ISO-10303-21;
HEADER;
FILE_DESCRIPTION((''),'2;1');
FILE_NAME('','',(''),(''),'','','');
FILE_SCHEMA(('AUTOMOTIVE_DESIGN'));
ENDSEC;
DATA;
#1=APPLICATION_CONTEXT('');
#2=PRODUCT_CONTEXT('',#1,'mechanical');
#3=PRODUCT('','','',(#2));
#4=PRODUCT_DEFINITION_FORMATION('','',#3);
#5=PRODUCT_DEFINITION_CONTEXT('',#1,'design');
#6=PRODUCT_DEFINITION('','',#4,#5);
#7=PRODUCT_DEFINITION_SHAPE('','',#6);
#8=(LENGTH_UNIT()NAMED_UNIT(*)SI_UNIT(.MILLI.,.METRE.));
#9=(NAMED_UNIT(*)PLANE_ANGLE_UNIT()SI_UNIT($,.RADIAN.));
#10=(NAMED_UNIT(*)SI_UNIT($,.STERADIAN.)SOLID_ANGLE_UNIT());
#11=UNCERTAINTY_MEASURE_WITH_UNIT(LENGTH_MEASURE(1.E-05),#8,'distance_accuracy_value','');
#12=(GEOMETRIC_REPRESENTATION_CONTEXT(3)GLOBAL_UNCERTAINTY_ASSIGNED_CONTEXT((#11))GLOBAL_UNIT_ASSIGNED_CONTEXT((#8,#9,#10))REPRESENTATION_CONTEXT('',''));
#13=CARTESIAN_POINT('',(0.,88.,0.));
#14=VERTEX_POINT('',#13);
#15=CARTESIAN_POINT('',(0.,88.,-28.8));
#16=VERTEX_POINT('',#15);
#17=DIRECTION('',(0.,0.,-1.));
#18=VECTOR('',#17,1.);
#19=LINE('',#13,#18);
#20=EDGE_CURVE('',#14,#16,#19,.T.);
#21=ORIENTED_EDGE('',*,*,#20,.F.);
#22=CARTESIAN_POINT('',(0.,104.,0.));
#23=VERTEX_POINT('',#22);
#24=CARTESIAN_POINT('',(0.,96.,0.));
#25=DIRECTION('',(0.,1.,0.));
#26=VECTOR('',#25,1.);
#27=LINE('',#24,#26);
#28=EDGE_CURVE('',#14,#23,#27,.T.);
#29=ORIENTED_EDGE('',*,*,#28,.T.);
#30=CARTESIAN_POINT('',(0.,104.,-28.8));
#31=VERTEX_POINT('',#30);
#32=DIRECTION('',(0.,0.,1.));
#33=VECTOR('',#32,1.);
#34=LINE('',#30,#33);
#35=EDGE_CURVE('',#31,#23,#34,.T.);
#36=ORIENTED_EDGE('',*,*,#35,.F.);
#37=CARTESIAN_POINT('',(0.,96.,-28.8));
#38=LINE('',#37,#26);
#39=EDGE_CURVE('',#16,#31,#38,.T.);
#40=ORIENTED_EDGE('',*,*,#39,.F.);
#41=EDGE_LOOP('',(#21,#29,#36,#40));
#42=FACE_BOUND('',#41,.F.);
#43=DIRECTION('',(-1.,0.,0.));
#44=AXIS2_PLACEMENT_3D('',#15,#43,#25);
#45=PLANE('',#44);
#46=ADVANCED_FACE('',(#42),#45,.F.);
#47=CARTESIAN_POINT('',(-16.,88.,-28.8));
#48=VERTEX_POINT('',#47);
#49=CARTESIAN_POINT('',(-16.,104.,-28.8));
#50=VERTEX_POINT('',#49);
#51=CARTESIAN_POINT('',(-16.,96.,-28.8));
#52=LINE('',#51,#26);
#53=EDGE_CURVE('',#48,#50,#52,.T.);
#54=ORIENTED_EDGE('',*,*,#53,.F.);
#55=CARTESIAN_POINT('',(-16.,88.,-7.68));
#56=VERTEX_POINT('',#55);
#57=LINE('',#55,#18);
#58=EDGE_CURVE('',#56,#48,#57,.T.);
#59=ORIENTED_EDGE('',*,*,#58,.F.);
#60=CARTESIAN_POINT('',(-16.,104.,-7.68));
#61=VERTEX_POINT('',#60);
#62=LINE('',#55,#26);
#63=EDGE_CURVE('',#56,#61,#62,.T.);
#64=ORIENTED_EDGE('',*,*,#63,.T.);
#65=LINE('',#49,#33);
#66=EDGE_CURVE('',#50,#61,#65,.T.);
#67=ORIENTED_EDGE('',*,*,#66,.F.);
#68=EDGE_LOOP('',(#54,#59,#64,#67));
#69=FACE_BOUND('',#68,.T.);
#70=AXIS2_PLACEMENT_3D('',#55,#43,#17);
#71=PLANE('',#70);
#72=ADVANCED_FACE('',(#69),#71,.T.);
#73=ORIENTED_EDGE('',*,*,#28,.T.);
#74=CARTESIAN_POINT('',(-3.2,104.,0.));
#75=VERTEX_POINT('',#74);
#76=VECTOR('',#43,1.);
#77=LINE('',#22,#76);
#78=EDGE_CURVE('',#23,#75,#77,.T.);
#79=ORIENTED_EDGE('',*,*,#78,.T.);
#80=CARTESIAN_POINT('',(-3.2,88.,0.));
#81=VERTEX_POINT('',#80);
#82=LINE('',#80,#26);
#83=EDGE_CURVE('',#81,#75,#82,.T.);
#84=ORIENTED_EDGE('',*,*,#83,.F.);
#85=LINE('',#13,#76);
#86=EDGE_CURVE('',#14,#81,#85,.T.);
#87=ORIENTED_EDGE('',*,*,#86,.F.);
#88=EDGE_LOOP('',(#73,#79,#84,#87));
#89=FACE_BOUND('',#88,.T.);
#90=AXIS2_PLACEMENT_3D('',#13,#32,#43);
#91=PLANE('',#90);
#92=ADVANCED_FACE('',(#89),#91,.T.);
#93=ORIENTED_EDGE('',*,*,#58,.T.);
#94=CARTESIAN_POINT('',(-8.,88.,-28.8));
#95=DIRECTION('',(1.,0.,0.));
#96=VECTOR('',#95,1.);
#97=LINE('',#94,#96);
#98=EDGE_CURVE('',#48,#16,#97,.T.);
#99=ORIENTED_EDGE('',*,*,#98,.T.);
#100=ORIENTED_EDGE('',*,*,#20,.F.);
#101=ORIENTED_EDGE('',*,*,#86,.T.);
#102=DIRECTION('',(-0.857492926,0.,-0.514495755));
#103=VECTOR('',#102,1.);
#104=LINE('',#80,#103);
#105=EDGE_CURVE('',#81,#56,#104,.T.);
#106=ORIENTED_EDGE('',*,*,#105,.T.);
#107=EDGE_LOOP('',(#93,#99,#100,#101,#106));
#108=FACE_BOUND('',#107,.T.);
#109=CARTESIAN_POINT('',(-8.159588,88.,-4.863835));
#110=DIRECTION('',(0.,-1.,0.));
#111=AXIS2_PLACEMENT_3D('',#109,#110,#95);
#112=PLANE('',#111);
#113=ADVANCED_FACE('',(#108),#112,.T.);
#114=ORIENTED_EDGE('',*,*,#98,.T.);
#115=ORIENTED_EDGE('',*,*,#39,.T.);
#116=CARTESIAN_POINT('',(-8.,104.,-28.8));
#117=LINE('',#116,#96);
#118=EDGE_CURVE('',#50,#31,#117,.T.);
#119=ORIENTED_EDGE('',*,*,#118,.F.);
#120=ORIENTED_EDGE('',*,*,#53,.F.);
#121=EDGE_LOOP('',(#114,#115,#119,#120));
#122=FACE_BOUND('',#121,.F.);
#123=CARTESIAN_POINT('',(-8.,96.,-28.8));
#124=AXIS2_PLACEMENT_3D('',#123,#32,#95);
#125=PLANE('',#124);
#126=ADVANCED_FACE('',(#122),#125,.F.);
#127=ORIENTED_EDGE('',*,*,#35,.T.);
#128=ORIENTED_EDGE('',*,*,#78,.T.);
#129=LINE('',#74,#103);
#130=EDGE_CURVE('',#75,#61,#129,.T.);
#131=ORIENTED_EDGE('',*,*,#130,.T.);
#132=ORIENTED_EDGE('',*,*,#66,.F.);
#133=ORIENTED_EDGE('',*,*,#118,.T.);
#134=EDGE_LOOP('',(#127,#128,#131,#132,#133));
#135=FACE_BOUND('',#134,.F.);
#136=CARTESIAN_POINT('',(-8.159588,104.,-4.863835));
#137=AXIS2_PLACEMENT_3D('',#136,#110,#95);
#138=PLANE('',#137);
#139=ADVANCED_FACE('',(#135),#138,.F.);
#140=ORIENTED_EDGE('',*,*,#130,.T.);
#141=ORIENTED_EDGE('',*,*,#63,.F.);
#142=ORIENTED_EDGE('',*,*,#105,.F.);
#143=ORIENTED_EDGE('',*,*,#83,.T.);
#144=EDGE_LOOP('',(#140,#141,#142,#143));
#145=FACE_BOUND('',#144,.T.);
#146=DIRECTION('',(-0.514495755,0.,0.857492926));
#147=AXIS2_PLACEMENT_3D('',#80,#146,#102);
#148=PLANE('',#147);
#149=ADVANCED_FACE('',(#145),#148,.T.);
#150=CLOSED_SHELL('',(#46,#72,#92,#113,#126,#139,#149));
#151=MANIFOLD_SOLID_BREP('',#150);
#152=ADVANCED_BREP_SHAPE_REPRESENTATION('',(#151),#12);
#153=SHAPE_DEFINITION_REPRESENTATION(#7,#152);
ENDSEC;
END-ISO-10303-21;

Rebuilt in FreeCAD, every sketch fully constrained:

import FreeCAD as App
import Part
import Sketcher

doc = App.newDocument("Part")
params = doc.addObject("Spreadsheet::Sheet", "Params")
for row, (alias, value) in enumerate([
    ("sketch1_width", "16 mm"),
    ("pad1_length", "28.8 mm"),
    ("sketch2_width", "16 mm"),
    ("sketch2_height", "9.6 mm"),
    ("pocket1_length", "16 mm"),
    ("sketch3_width", "3.2 mm"),
    ("pad2_length", "16 mm"),
], start=1):
    params.set(f"A{row}", alias)
    params.set(f"B{row}", "=" + value)
    params.setAlias(f"B{row}", alias)

body = doc.addObject("PartDesign::Body", "Body")

sketch1 = doc.addObject("Sketcher::SketchObject", "Sketch")
body.addObject(sketch1)
sketch1.AttachmentSupport = (doc.XY_Plane, [""])
sketch1.MapMode = "FlatFace"
sketch1.AttachmentOffset = App.Placement(App.Vector(0, 0, -28.8), App.Rotation())
sketch1.addGeometry([
    Part.LineSegment(App.Vector(-16, 104, 0), App.Vector(-16, 88, 0)),
    Part.LineSegment(App.Vector(-16, 88, 0), App.Vector(0, 88, 0)),
    Part.LineSegment(App.Vector(0, 88, 0), App.Vector(0, 104, 0)),
    Part.LineSegment(App.Vector(0, 104, 0), App.Vector(-16, 104, 0)),
], False)
sketch1.addConstraint([
    Sketcher.Constraint("Coincident", 0, 2, 1, 1),
    Sketcher.Constraint("Coincident", 1, 2, 2, 1),
    Sketcher.Constraint("Coincident", 2, 2, 3, 1),
    Sketcher.Constraint("Coincident", 3, 2, 0, 1),
    Sketcher.Constraint("Vertical", 0),
    Sketcher.Constraint("Horizontal", 1),
    Sketcher.Constraint("Vertical", 2),
    Sketcher.Constraint("Horizontal", 3),
    Sketcher.Constraint("PointOnObject", 1, 2, -2),
    Sketcher.Constraint("Equal", 3, 0),
    Sketcher.Constraint("DistanceX", 1, 1, 1, 2, 16.0),
    Sketcher.Constraint("DistanceY", -1, 1, 0, 2, 88.0),
])
sketch1.setExpression("Constraints[10]", "Params.sketch1_width")
pad1 = doc.addObject("PartDesign::Pad", "Pad")
body.addObject(pad1)
pad1.Profile = sketch1
pad1.setExpression("Length", "Params.pad1_length")

sketch2 = doc.addObject("Sketcher::SketchObject", "Sketch001")
body.addObject(sketch2)
sketch2.AttachmentSupport = (doc.XZ_Plane, [""])
sketch2.MapMode = "FlatFace"
sketch2.AttachmentOffset = App.Placement(App.Vector(0, 0, -88), App.Rotation())
sketch2.addGeometry([
    Part.LineSegment(App.Vector(-16, -10, 0), App.Vector(0, 0, 0)),
    Part.LineSegment(App.Vector(0, 0, 0), App.Vector(-16, 0, 0)),
    Part.LineSegment(App.Vector(-16, 0, 0), App.Vector(-16, -10, 0)),
], False)
sketch2.addConstraint([
    Sketcher.Constraint("Coincident", 0, 2, 1, 1),
    Sketcher.Constraint("Coincident", 1, 2, 2, 1),
    Sketcher.Constraint("Coincident", 2, 2, 0, 1),
    Sketcher.Constraint("Horizontal", 1),
    Sketcher.Constraint("Vertical", 2),
    Sketcher.Constraint("Coincident", 0, 2, -1, 1),
    Sketcher.Constraint("DistanceX", 1, 2, 1, 1, 16.0),
    Sketcher.Constraint("DistanceY", 2, 2, 2, 1, 9.6),
])
sketch2.setExpression("Constraints[6]", "Params.sketch2_width")
sketch2.setExpression("Constraints[7]", "Params.sketch2_height")
pocket1 = doc.addObject("PartDesign::Pocket", "Pocket")
body.addObject(pocket1)
pocket1.Profile = sketch2
pocket1.setExpression("Length", "Params.pocket1_length")

sketch3 = doc.addObject("Sketcher::SketchObject", "Sketch002")
body.addObject(sketch3)
sketch3.AttachmentSupport = (doc.XZ_Plane, [""])
sketch3.MapMode = "FlatFace"
sketch3.AttachmentOffset = App.Placement(App.Vector(0, 0, -88), App.Rotation())
sketch3.addGeometry([
    Part.LineSegment(App.Vector(0, 0, 0), App.Vector(-3.2, 0, 0)),
    Part.LineSegment(App.Vector(-3.2, 0, 0), App.Vector(-16, -7.7, 0)),
    Part.LineSegment(App.Vector(-16, -7.7, 0), App.Vector(-16, -10.9, 0)),
    Part.LineSegment(App.Vector(-16, -10.9, 0), App.Vector(-3.2, -3.2, 0)),
    Part.LineSegment(App.Vector(-3.2, -3.2, 0), App.Vector(0, -3.2, 0)),
    Part.LineSegment(App.Vector(0, -3.2, 0), App.Vector(0, 0, 0)),
], False)
sketch3.addConstraint([
    Sketcher.Constraint("Coincident", 0, 2, 1, 1),
    Sketcher.Constraint("Coincident", 1, 2, 2, 1),
    Sketcher.Constraint("Coincident", 2, 2, 3, 1),
    Sketcher.Constraint("Coincident", 3, 2, 4, 1),
    Sketcher.Constraint("Coincident", 4, 2, 5, 1),
    Sketcher.Constraint("Coincident", 5, 2, 0, 1),
    Sketcher.Constraint("Horizontal", 0),
    Sketcher.Constraint("Vertical", 2),
    Sketcher.Constraint("Horizontal", 4),
    Sketcher.Constraint("Vertical", 5),
    Sketcher.Constraint("Coincident", 5, 2, -1, 1),
    Sketcher.Constraint("Parallel", 1, 3),
    Sketcher.Constraint("Vertical", 0, 2, 3, 2),
    Sketcher.Constraint("Equal", 4, 2),
    Sketcher.Constraint("DistanceX", 0, 2, 0, 1, 3.2),
    Sketcher.Constraint("DistanceX", 1, 2, -1, 1, 16.0),
    Sketcher.Constraint("DistanceY", 1, 2, -1, 1, 7.68),
])
sketch3.setExpression("Constraints[14]", "Params.sketch3_width")
pad2 = doc.addObject("PartDesign::Pad", "Pad001")
body.addObject(pad2)
pad2.Profile = sketch3
pad2.setExpression("Length", "Params.pad2_length")
pad2.Reversed = True

doc.recompute()
